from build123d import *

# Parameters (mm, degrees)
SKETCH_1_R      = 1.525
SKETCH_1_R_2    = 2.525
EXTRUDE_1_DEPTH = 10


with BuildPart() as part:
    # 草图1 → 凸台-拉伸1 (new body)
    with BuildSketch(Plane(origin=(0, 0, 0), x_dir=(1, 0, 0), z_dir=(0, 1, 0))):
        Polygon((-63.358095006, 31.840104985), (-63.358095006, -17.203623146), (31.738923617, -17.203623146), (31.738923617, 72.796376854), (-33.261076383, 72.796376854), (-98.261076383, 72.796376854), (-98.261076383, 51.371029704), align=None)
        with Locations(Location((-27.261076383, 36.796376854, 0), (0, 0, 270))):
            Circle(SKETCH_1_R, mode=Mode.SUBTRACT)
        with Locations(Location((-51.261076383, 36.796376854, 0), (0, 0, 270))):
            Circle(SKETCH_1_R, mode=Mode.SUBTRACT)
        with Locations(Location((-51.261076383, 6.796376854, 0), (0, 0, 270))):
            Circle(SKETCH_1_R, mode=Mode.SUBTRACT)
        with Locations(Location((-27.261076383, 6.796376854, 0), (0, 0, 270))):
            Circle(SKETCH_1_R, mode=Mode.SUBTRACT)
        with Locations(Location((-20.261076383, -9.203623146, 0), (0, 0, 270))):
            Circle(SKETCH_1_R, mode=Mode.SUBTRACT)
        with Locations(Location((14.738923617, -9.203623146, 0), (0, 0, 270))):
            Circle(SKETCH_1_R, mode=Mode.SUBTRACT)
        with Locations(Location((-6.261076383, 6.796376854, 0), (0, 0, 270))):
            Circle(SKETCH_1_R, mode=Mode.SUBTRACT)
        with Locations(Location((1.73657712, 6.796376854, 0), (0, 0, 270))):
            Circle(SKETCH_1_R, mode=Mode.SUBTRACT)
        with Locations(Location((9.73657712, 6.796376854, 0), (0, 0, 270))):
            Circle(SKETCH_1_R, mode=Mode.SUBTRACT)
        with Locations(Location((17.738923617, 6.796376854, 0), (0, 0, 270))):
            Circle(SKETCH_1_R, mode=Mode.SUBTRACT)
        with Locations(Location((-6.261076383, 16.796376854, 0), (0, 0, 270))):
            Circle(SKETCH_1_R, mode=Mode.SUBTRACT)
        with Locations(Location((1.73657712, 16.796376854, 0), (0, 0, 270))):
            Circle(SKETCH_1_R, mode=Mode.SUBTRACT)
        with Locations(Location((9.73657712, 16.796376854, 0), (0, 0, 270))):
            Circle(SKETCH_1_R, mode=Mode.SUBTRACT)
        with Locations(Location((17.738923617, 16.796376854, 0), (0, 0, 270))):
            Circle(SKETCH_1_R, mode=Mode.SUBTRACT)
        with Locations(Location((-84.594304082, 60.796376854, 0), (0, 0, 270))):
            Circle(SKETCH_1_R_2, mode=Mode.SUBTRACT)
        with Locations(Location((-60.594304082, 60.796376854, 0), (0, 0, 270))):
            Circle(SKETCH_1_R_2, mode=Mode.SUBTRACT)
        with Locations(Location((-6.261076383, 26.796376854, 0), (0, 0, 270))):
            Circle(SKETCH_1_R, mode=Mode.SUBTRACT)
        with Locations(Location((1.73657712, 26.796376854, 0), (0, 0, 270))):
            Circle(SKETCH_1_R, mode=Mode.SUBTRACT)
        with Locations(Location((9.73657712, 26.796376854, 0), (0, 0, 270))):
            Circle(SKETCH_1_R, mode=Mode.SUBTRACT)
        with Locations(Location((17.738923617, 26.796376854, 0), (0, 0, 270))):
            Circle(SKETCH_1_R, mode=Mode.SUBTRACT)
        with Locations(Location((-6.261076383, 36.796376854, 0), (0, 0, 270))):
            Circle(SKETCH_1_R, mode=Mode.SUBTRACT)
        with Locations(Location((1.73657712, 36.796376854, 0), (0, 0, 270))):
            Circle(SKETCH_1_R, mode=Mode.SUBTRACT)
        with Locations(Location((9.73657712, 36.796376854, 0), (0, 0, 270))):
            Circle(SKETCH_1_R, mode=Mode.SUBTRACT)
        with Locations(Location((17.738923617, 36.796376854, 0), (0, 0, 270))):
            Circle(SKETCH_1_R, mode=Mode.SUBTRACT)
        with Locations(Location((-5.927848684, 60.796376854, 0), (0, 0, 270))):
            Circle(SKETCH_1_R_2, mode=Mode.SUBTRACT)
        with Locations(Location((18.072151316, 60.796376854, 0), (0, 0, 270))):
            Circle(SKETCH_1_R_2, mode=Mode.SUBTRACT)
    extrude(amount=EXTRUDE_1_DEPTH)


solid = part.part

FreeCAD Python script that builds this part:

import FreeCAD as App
import Part
import Sketcher

doc = App.newDocument("Part")
params = doc.addObject("Spreadsheet::Sheet", "Params")
for row, (alias, value) in enumerate([
    ("sketch1_diameter", "3.05 mm"),
    ("sketch1_diameter2", "5.05 mm"),
    ("sketch1_width", "130 mm"),
    ("sketch1_height", "90 mm"),
    ("pad1_length", "10 mm"),
], start=1):
    params.set(f"A{row}", alias)
    params.set(f"B{row}", "=" + value)
    params.setAlias(f"B{row}", alias)

body = doc.addObject("PartDesign::Body", "Body")

# Sketch on XZ plane
sketch1 = body.newObject("Sketcher::SketchObject", "Sketch")
sketch1.AttachmentSupport = (doc.getObject("XZ_Plane"), [""])
sketch1.MapMode = "FlatFace"
sketch1.addGeometry([
    Part.LineSegment(App.Vector(-63.4, -31.8, 0), App.Vector(-63.4, 17.2, 0)),  # 0
    Part.LineSegment(App.Vector(-63.4, 17.2, 0), App.Vector(31.7, 17.2, 0)),  # 1
    Part.LineSegment(App.Vector(31.7, 17.2, 0), App.Vector(31.7, -72.8, 0)),  # 2
    Part.LineSegment(App.Vector(31.7, -72.8, 0), App.Vector(-98.3, -72.8, 0)),  # 3
    Part.LineSegment(App.Vector(-98.3, -72.8, 0), App.Vector(-98.3, -51.4, 0)),  # 4
    Part.LineSegment(App.Vector(-98.3, -51.4, 0), App.Vector(-63.4, -31.8, 0)),  # 5
    Part.Circle(App.Vector(-51.3, -6.8, 0), App.Vector(0, 0, 1), 1.5),  # 6
    Part.Circle(App.Vector(-20.3, 9.2, 0), App.Vector(0, 0, 1), 1.5),  # 7
    Part.Circle(App.Vector(-27.3, -6.8, 0), App.Vector(0, 0, 1), 1.5),  # 8
    Part.Circle(App.Vector(14.7, 9.2, 0), App.Vector(0, 0, 1), 1.5),  # 9
    Part.Circle(App.Vector(-6.3, -6.8, 0), App.Vector(0, 0, 1), 1.5),  # 10
    Part.Circle(App.Vector(1.7, -6.8, 0), App.Vector(0, 0, 1), 1.5),  # 11
    Part.Circle(App.Vector(9.7, -6.8, 0), App.Vector(0, 0, 1), 1.5),  # 12
    Part.Circle(App.Vector(17.7, -6.8, 0), App.Vector(0, 0, 1), 1.5),  # 13
    Part.Circle(App.Vector(-6.3, -16.8, 0), App.Vector(0, 0, 1), 1.5),  # 14
    Part.Circle(App.Vector(1.7, -16.8, 0), App.Vector(0, 0, 1), 1.5),  # 15
    Part.Circle(App.Vector(9.7, -16.8, 0), App.Vector(0, 0, 1), 1.5),  # 16
    Part.Circle(App.Vector(17.7, -16.8, 0), App.Vector(0, 0, 1), 1.5),  # 17
    Part.Circle(App.Vector(-51.3, -36.8, 0), App.Vector(0, 0, 1), 1.5),  # 18
    Part.Circle(App.Vector(-84.6, -60.8, 0), App.Vector(0, 0, 1), 2.5),  # 19
    Part.Circle(App.Vector(-60.6, -60.8, 0), App.Vector(0, 0, 1), 2.5),  # 20
    Part.Circle(App.Vector(-27.3, -36.8, 0), App.Vector(0, 0, 1), 1.5),  # 21
    Part.Circle(App.Vector(-6.3, -26.8, 0), App.Vector(0, 0, 1), 1.5),  # 22
    Part.Circle(App.Vector(1.7, -26.8, 0), App.Vector(0, 0, 1), 1.5),  # 23
    Part.Circle(App.Vector(9.7, -26.8, 0), App.Vector(0, 0, 1), 1.5),  # 24
    Part.Circle(App.Vector(17.7, -26.8, 0), App.Vector(0, 0, 1), 1.5),  # 25
    Part.Circle(App.Vector(-6.3, -36.8, 0), App.Vector(0, 0, 1), 1.5),  # 26
    Part.Circle(App.Vector(1.7, -36.8, 0), App.Vector(0, 0, 1), 1.5),  # 27
    Part.Circle(App.Vector(9.7, -36.8, 0), App.Vector(0, 0, 1), 1.5),  # 28
    Part.Circle(App.Vector(17.7, -36.8, 0), App.Vector(0, 0, 1), 1.5),  # 29
    Part.Circle(App.Vector(-5.9, -60.8, 0), App.Vector(0, 0, 1), 2.5),  # 30
    Part.Circle(App.Vector(18.1, -60.8, 0), App.Vector(0, 0, 1), 2.5),  # 31
], False)
sketch1.addConstraint([
    Sketcher.Constraint("Coincident", 0, 2, 1, 1),
    Sketcher.Constraint("Coincident", 1, 2, 2, 1),
    Sketcher.Constraint("Coincident", 2, 2, 3, 1),
    Sketcher.Constraint("Coincident", 3, 2, 4, 1),
    Sketcher.Constraint("Coincident", 4, 2, 5, 1),
    Sketcher.Constraint("Coincident", 5, 2, 0, 1),
    Sketcher.Constraint("Vertical", 0),
    Sketcher.Constraint("Horizontal", 1),
    Sketcher.Constraint("Vertical", 2),
    Sketcher.Constraint("Horizontal", 3),
    Sketcher.Constraint("Vertical", 4),
    Sketcher.Constraint("Equal", 6, 7),
    Sketcher.Constraint("Equal", 7, 8),
    Sketcher.Constraint("Equal", 8, 9),
    Sketcher.Constraint("Equal", 9, 10),
    Sketcher.Constraint("Equal", 10, 11),
    Sketcher.Constraint("Equal", 11, 12),
    Sketcher.Constraint("Equal", 12, 13),
    Sketcher.Constraint("Equal", 13, 14),
    Sketcher.Constraint("Equal", 14, 15),
    Sketcher.Constraint("Equal", 15, 16),
    Sketcher.Constraint("Equal", 16, 17),
    Sketcher.Constraint("Equal", 17, 18),
    Sketcher.Constraint("Equal", 19, 20),
    Sketcher.Constraint("Equal", 18, 21),
    Sketcher.Constraint("Equal", 21, 22),
    Sketcher.Constraint("Equal", 22, 23),
    Sketcher.Constraint("Equal", 23, 24),
    Sketcher.Constraint("Equal", 24, 25),
    Sketcher.Constraint("Equal", 25, 26),
    Sketcher.Constraint("Equal", 26, 27),
    Sketcher.Constraint("Equal", 27, 28),
    Sketcher.Constraint("Equal", 28, 29),
    Sketcher.Constraint("Equal", 20, 30),
    Sketcher.Constraint("Equal", 30, 31),
    Sketcher.Constraint("Horizontal", 6, 3, 8, 3),
    Sketcher.Constraint("Horizontal", 7, 3, 9, 3),
    Sketcher.Constraint("Horizontal", 8, 3, 10, 3),
    Sketcher.Constraint("Horizontal", 10, 3, 11, 3),
    Sketcher.Constraint("Horizontal", 11, 3, 12, 3),
    Sketcher.Constraint("Horizontal", 12, 3, 13, 3),
    Sketcher.Constraint("Horizontal", 14, 3, 15, 3),
    Sketcher.Constraint("Horizontal", 15, 3, 16, 3),
    Sketcher.Constraint("Horizontal", 16, 3, 17, 3),
    Sketcher.Constraint("Horizontal", 19, 3, 20, 3),
    Sketcher.Constraint("Horizontal", 18, 3, 21, 3),
    Sketcher.Constraint("Horizontal", 22, 3, 23, 3),
    Sketcher.Constraint("Horizontal", 23, 3, 24, 3),
    Sketcher.Constraint("Horizontal", 24, 3, 25, 3),
    Sketcher.Constraint("Horizontal", 21, 3, 26, 3),
    Sketcher.Constraint("Horizontal", 26, 3, 27, 3),
    Sketcher.Constraint("Horizontal", 27, 3, 28, 3),
    Sketcher.Constraint("Horizontal", 28, 3, 29, 3),
    Sketcher.Constraint("Horizontal", 20, 3, 30, 3),
    Sketcher.Constraint("Horizontal", 30, 3, 31, 3),
    Sketcher.Constraint("Vertical", 10, 3, 14, 3),
    Sketcher.Constraint("Vertical", 11, 3, 15, 3),
    Sketcher.Constraint("Vertical", 12, 3, 16, 3),
    Sketcher.Constraint("Vertical", 13, 3, 17, 3),
    Sketcher.Constraint("Vertical", 6, 3, 18, 3),
    Sketcher.Constraint("Vertical", 8, 3, 21, 3),
    Sketcher.Constraint("Vertical", 14, 3, 22, 3),
    Sketcher.Constraint("Vertical", 15, 3, 23, 3),
    Sketcher.Constraint("Vertical", 16, 3, 24, 3),
    Sketcher.Constraint("Vertical", 17, 3, 25, 3),
    Sketcher.Constraint("Vertical", 22, 3, 26, 3),
    Sketcher.Constraint("Vertical", 23, 3, 27, 3),
    Sketcher.Constraint("Vertical", 24, 3, 28, 3),
    Sketcher.Constraint("Vertical", 25, 3, 29, 3),
    Sketcher.Constraint("Diameter", 6, 3.05),
    Sketcher.Constraint("Diameter", 19, 5.05),
    Sketcher.Constraint("DistanceX", 3, 2, 3, 1, 130.0),
    Sketcher.Constraint("DistanceY", 2, 2, 2, 1, 90.0),
    Sketcher.Constraint("DistanceX", 6, 3, 7, 3, 31.0),
    Sketcher.Constraint("DistanceY", 6, 3, 7, 3, 16.0),
    Sketcher.Constraint("DistanceX", 8, 3, 7, 3, 7.0),
    Sketcher.Constraint("DistanceX", 7, 3, 9, 3, 35.0),
    Sketcher.Constraint("DistanceX", 8, 3, 10, 3, 21.0),
    Sketcher.Constraint("DistanceX", 11, 3, 12, 3, 8.0),
    Sketcher.Constraint("DistanceX", 9, 3, 13, 3, 3.0),
    Sketcher.Constraint("DistanceY", 14, 3, 10, 3, 10.0),
    Sketcher.Constraint("DistanceY", 18, 3, 6, 3, 30.0),
    Sketcher.Constraint("DistanceY", 19, 3, 18, 3, 24.0),
    Sketcher.Constraint("DistanceX", 19, 3, 20, 3, 24.0),
    Sketcher.Constraint("DistanceY", 22, 3, 14, 3, 10.0),
    Sketcher.Constraint("DistanceX", 30, 3, 31, 3, 24.0),
    Sketcher.Constraint("DistanceY", 6, 3, 0, 2, 24.0),
    Sketcher.Constraint("DistanceX", 9, 3, 1, 2, 17.0),
    Sketcher.Constraint("DistanceX", 1, 1, 1, 2, 95.097019),
    Sketcher.Constraint("DistanceY", 0, 1, 0, 2, 49.043728),
    Sketcher.Constraint("Distance", 5, 39.995939),
    Sketcher.Constraint("DistanceX", 30, 3, -1, 1, 5.927849),
    Sketcher.Constraint("DistanceY", 4, 2, -1, 1, 51.37103),
    Sketcher.Constraint("DistanceX", 5, 2, 20, 3, 2.763791),
    Sketcher.Constraint("DistanceX", 6, 3, -1, 1, 51.261076),
    Sketcher.Constraint("DistanceX", -1, 1, 11, 3, 1.736577),
])
sketch1.setExpression("Constraints[69]", "Params.sketch1_diameter")
sketch1.setExpression("Constraints[70]", "Params.sketch1_diameter2")
sketch1.setExpression("Constraints[71]", "Params.sketch1_width")
sketch1.setExpression("Constraints[72]", "Params.sketch1_height")
pad1 = body.newObject("PartDesign::Pad", "Pad")
pad1.Profile = sketch1
pad1.setExpression("Length", "Params.pad1_length")
pad1.Reversed = True

doc.recompute()
